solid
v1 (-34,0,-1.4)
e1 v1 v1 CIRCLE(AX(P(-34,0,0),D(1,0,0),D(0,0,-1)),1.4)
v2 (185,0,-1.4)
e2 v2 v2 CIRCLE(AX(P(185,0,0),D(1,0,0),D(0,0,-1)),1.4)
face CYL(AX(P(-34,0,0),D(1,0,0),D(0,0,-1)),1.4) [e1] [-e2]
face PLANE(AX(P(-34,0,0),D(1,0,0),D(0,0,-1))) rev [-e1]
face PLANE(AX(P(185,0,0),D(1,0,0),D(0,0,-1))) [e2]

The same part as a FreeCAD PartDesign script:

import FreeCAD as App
import Part
import Sketcher
Q = App.Units.Quantity

doc = App.newDocument("Part")
params = doc.addObject("Spreadsheet::Sheet", "Params")
for row, (alias, value) in enumerate([
    ("sketch1_diameter", "2.8 mm"),
    ("pad1_length", "185 mm"),
    ("pad1_length2", "34 mm"),
], start=1):
    params.set(f"A{row}", alias)
    params.set(f"B{row}", "=" + value)
    params.setAlias(f"B{row}", alias)

body = doc.addObject("PartDesign::Body", "Body")

sketch1 = doc.addObject("Sketcher::SketchObject", "Sketch")
body.addObject(sketch1)
sketch1.AttachmentSupport = (doc.YZ_Plane, [""])
sketch1.MapMode = "FlatFace"
sketch1.addGeometry(Part.Circle(App.Vector(0, 0, 0), App.Vector(0, 0, 1), 1.4), False)
sketch1.addConstraint([
    Sketcher.Constraint("Coincident", 0, 3, -1, 1),
    Sketcher.Constraint("Diameter", 0, Q("2.8 mm")),
])
sketch1.setExpression("Constraints[1]", "Params.sketch1_diameter")
pad1 = doc.addObject("PartDesign::Pad", "Pad")
body.addObject(pad1)
pad1.Profile = sketch1
pad1.Type = "TwoLengths"
pad1.setExpression("Length", "Params.pad1_length")
pad1.setExpression("Length2", "Params.pad1_length2")

doc.recompute()
